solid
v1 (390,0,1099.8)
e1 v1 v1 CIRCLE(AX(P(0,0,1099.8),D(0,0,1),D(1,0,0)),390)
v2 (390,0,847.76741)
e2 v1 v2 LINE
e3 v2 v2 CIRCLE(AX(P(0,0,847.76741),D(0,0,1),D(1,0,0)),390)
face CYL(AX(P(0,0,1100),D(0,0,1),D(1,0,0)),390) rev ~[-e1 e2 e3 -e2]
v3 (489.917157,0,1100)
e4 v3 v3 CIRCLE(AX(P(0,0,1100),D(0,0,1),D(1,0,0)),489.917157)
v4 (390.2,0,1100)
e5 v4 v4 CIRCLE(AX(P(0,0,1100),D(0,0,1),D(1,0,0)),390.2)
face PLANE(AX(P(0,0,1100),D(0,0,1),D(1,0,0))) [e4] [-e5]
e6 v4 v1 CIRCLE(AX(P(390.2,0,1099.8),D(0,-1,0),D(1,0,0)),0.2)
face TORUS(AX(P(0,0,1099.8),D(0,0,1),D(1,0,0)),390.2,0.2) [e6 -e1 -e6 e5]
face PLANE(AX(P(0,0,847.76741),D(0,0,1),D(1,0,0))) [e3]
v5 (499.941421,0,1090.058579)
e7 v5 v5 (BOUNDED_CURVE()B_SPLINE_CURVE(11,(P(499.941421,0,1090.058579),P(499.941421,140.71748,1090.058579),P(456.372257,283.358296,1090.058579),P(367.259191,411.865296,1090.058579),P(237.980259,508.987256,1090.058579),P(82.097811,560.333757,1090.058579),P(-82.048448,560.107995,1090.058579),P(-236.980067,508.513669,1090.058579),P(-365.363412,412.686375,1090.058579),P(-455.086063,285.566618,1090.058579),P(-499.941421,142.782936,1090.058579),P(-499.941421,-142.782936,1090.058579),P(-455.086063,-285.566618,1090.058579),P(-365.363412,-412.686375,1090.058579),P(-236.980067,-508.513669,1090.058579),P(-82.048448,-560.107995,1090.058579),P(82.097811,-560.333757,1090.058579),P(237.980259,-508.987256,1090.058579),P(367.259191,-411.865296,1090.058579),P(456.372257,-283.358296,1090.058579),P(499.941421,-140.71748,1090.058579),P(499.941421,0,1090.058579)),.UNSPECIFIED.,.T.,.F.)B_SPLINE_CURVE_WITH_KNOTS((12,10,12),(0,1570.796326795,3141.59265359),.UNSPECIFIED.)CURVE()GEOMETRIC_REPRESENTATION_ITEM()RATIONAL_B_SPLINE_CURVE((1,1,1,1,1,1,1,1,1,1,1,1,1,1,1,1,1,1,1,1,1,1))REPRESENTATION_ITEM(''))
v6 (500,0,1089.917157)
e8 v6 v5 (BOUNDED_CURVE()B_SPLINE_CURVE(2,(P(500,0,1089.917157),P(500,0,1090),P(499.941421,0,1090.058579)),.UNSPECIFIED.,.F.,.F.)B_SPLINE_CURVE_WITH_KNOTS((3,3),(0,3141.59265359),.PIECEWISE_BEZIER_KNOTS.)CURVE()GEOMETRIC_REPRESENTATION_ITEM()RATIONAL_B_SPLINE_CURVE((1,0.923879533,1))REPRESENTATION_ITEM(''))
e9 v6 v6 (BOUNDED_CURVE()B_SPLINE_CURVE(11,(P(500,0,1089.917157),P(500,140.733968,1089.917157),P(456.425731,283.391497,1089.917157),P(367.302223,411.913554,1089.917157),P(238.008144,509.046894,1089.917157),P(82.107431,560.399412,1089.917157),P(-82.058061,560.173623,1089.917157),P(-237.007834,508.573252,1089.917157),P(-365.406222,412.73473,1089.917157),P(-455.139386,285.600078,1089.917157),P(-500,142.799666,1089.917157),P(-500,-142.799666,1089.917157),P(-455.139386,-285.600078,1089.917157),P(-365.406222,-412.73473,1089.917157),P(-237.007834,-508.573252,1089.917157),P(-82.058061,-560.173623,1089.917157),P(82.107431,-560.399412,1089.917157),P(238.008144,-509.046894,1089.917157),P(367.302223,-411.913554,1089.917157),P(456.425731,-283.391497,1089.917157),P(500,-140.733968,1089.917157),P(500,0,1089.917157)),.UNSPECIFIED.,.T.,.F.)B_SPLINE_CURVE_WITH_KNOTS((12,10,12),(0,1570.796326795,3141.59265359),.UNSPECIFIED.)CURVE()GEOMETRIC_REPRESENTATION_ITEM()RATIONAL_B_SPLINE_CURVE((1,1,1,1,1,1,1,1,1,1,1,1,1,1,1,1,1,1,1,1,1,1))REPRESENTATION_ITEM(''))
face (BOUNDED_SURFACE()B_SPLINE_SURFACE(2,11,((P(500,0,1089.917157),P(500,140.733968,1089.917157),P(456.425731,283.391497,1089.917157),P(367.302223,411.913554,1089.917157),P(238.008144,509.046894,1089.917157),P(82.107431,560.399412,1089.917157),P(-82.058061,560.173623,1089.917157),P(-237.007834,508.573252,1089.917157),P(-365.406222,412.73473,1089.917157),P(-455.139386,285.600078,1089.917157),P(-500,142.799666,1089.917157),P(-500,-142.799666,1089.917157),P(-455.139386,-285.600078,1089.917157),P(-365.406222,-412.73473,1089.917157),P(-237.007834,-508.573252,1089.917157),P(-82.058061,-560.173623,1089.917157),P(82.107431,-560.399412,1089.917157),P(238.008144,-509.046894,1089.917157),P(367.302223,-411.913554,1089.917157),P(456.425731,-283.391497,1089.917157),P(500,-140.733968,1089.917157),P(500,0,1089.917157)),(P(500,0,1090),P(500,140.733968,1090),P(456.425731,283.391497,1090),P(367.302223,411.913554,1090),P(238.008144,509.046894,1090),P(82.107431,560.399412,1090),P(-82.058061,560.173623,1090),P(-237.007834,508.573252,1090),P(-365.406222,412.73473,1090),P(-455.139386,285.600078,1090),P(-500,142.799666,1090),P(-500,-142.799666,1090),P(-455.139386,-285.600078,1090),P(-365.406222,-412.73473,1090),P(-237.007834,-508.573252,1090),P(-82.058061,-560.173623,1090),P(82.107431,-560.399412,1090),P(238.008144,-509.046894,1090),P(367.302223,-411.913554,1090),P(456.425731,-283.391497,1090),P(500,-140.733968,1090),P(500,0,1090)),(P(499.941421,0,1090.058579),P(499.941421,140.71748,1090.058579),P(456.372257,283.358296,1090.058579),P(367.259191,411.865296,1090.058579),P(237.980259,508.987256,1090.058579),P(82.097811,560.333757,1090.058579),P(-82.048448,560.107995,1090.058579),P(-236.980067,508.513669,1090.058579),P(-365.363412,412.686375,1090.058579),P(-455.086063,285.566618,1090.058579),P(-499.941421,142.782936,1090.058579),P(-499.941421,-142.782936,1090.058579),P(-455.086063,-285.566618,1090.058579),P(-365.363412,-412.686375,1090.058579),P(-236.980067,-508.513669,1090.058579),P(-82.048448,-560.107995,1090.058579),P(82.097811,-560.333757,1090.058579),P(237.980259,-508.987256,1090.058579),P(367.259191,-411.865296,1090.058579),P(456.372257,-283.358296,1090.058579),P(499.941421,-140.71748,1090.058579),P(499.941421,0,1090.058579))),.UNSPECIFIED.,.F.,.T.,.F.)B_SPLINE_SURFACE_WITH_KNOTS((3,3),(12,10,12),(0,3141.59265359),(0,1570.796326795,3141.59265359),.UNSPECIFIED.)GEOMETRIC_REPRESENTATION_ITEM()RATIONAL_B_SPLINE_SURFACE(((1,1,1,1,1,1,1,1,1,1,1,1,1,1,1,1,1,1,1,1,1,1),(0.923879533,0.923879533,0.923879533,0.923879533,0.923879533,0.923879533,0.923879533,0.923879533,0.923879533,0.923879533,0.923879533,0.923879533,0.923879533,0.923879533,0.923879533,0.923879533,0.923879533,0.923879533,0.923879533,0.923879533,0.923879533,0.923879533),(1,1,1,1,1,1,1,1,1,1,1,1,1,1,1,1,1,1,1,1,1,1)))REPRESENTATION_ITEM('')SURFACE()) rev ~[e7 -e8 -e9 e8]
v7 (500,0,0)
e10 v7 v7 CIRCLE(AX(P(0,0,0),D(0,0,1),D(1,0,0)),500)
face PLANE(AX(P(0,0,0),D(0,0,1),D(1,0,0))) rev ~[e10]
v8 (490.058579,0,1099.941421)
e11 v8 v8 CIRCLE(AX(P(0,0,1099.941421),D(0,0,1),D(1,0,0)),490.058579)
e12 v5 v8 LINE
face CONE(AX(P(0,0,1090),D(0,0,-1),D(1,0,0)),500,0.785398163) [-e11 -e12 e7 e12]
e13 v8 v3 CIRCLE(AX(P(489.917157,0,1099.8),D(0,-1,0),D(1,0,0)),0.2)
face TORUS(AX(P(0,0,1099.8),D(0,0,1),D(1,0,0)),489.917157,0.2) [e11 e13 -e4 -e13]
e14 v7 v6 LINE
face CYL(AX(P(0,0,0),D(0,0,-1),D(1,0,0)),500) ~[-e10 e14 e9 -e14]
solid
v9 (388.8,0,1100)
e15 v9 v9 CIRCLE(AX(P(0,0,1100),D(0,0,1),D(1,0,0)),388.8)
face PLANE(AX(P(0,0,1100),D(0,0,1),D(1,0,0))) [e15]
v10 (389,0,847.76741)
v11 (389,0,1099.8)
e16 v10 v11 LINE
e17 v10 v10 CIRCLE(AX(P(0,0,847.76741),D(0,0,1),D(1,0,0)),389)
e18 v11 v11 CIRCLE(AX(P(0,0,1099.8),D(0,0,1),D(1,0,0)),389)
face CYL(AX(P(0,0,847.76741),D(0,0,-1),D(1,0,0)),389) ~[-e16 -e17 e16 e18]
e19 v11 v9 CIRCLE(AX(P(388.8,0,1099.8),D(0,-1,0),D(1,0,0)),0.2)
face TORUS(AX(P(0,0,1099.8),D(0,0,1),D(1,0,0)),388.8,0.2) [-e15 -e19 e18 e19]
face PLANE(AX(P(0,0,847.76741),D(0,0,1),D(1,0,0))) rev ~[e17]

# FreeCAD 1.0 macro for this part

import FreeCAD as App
import Part
import Sketcher


def edges_at(feature, points):
    """Names of the edges that pass closest to the given points."""
    edges = feature.Shape.Edges
    near = lambda p: min(range(len(edges)), key=lambda i: edges[i].distToShape(Part.Vertex(*p))[0])
    return sorted({f"Edge{near(p) + 1}" for p in points})

doc = App.newDocument("Part")
body = doc.addObject("PartDesign::Body", "Body")

# Sketch on XY plane
sketch1 = body.newObject("Sketcher::SketchObject", "Sketch")
sketch1.AttachmentSupport = (doc.getObject("XY_Plane"), [""])
sketch1.MapMode = "FlatFace"
sketch1.addGeometry(Part.Circle(App.Vector(0, 0, 0), App.Vector(0, 0, 1), 500), False)
sketch1.addConstraint(Sketcher.Constraint("Coincident", 0, 3, -1, 1))
sketch1.addConstraint(Sketcher.Constraint("Diameter", 0, 1000.0))
pad1 = body.newObject("PartDesign::Pad", "Pad")
pad1.Profile = sketch1
pad1.Length = 1100
doc.recompute()

chamfer = body.newObject("PartDesign::Chamfer", "Chamfer")
chamfer.Base = (pad1, edges_at(pad1, [(-500, 0, 1100)]))
chamfer.Size = 10

# Sketch on XY plane
sketch2 = body.newObject("Sketcher::SketchObject", "Sketch001")
sketch2.AttachmentSupport = (doc.getObject("XY_Plane"), [""])
sketch2.MapMode = "FlatFace"
sketch2.AttachmentOffset = App.Placement(App.Vector(0, 0, 1100), App.Rotation())
sketch2.addGeometry(Part.Circle(App.Vector(0, 0, 0), App.Vector(0, 0, 1), 390), False)
sketch2.addConstraint(Sketcher.Constraint("Coincident", 0, 3, -1, 1))
sketch2.addConstraint(Sketcher.Constraint("Diameter", 0, 780.0))
pocket1 = body.newObject("PartDesign::Pocket", "Pocket")
pocket1.Profile = sketch2
pocket1.Length = 252.23259
doc.recompute()

fillet = body.newObject("PartDesign::Fillet", "Fillet")
fillet.Base = (pocket1, edges_at(pocket1, [(-390, 0, 1100), (-490, 0, 1100), (-500, 0, 1090)]))
fillet.Radius = 0.2
body2 = doc.addObject("PartDesign::Body", "Body001")

# Sketch on XY plane
sketch3 = body2.newObject("Sketcher::SketchObject", "Sketch002")
sketch3.AttachmentSupport = (doc.getObject("XY_Plane001"), [""])
sketch3.MapMode = "FlatFace"
sketch3.AttachmentOffset = App.Placement(App.Vector(0, 0, 847.76741), App.Rotation())
sketch3.addGeometry(Part.Circle(App.Vector(0, 0, 0), App.Vector(0, 0, 1), 389), False)
sketch3.addConstraint(Sketcher.Constraint("Coincident", 0, 3, -1, 1))
sketch3.addConstraint(Sketcher.Constraint("Diameter", 0, 778.0))
pad2 = body2.newObject("PartDesign::Pad", "Pad001")
pad2.Profile = sketch3
pad2.Length = 252.23259
doc.recompute()

fillet2 = body2.newObject("PartDesign::Fillet", "Fillet001")
fillet2.Base = (pad2, edges_at(pad2, [(-389, 0, 1100)]))
fillet2.Radius = 0.2

doc.recompute()
